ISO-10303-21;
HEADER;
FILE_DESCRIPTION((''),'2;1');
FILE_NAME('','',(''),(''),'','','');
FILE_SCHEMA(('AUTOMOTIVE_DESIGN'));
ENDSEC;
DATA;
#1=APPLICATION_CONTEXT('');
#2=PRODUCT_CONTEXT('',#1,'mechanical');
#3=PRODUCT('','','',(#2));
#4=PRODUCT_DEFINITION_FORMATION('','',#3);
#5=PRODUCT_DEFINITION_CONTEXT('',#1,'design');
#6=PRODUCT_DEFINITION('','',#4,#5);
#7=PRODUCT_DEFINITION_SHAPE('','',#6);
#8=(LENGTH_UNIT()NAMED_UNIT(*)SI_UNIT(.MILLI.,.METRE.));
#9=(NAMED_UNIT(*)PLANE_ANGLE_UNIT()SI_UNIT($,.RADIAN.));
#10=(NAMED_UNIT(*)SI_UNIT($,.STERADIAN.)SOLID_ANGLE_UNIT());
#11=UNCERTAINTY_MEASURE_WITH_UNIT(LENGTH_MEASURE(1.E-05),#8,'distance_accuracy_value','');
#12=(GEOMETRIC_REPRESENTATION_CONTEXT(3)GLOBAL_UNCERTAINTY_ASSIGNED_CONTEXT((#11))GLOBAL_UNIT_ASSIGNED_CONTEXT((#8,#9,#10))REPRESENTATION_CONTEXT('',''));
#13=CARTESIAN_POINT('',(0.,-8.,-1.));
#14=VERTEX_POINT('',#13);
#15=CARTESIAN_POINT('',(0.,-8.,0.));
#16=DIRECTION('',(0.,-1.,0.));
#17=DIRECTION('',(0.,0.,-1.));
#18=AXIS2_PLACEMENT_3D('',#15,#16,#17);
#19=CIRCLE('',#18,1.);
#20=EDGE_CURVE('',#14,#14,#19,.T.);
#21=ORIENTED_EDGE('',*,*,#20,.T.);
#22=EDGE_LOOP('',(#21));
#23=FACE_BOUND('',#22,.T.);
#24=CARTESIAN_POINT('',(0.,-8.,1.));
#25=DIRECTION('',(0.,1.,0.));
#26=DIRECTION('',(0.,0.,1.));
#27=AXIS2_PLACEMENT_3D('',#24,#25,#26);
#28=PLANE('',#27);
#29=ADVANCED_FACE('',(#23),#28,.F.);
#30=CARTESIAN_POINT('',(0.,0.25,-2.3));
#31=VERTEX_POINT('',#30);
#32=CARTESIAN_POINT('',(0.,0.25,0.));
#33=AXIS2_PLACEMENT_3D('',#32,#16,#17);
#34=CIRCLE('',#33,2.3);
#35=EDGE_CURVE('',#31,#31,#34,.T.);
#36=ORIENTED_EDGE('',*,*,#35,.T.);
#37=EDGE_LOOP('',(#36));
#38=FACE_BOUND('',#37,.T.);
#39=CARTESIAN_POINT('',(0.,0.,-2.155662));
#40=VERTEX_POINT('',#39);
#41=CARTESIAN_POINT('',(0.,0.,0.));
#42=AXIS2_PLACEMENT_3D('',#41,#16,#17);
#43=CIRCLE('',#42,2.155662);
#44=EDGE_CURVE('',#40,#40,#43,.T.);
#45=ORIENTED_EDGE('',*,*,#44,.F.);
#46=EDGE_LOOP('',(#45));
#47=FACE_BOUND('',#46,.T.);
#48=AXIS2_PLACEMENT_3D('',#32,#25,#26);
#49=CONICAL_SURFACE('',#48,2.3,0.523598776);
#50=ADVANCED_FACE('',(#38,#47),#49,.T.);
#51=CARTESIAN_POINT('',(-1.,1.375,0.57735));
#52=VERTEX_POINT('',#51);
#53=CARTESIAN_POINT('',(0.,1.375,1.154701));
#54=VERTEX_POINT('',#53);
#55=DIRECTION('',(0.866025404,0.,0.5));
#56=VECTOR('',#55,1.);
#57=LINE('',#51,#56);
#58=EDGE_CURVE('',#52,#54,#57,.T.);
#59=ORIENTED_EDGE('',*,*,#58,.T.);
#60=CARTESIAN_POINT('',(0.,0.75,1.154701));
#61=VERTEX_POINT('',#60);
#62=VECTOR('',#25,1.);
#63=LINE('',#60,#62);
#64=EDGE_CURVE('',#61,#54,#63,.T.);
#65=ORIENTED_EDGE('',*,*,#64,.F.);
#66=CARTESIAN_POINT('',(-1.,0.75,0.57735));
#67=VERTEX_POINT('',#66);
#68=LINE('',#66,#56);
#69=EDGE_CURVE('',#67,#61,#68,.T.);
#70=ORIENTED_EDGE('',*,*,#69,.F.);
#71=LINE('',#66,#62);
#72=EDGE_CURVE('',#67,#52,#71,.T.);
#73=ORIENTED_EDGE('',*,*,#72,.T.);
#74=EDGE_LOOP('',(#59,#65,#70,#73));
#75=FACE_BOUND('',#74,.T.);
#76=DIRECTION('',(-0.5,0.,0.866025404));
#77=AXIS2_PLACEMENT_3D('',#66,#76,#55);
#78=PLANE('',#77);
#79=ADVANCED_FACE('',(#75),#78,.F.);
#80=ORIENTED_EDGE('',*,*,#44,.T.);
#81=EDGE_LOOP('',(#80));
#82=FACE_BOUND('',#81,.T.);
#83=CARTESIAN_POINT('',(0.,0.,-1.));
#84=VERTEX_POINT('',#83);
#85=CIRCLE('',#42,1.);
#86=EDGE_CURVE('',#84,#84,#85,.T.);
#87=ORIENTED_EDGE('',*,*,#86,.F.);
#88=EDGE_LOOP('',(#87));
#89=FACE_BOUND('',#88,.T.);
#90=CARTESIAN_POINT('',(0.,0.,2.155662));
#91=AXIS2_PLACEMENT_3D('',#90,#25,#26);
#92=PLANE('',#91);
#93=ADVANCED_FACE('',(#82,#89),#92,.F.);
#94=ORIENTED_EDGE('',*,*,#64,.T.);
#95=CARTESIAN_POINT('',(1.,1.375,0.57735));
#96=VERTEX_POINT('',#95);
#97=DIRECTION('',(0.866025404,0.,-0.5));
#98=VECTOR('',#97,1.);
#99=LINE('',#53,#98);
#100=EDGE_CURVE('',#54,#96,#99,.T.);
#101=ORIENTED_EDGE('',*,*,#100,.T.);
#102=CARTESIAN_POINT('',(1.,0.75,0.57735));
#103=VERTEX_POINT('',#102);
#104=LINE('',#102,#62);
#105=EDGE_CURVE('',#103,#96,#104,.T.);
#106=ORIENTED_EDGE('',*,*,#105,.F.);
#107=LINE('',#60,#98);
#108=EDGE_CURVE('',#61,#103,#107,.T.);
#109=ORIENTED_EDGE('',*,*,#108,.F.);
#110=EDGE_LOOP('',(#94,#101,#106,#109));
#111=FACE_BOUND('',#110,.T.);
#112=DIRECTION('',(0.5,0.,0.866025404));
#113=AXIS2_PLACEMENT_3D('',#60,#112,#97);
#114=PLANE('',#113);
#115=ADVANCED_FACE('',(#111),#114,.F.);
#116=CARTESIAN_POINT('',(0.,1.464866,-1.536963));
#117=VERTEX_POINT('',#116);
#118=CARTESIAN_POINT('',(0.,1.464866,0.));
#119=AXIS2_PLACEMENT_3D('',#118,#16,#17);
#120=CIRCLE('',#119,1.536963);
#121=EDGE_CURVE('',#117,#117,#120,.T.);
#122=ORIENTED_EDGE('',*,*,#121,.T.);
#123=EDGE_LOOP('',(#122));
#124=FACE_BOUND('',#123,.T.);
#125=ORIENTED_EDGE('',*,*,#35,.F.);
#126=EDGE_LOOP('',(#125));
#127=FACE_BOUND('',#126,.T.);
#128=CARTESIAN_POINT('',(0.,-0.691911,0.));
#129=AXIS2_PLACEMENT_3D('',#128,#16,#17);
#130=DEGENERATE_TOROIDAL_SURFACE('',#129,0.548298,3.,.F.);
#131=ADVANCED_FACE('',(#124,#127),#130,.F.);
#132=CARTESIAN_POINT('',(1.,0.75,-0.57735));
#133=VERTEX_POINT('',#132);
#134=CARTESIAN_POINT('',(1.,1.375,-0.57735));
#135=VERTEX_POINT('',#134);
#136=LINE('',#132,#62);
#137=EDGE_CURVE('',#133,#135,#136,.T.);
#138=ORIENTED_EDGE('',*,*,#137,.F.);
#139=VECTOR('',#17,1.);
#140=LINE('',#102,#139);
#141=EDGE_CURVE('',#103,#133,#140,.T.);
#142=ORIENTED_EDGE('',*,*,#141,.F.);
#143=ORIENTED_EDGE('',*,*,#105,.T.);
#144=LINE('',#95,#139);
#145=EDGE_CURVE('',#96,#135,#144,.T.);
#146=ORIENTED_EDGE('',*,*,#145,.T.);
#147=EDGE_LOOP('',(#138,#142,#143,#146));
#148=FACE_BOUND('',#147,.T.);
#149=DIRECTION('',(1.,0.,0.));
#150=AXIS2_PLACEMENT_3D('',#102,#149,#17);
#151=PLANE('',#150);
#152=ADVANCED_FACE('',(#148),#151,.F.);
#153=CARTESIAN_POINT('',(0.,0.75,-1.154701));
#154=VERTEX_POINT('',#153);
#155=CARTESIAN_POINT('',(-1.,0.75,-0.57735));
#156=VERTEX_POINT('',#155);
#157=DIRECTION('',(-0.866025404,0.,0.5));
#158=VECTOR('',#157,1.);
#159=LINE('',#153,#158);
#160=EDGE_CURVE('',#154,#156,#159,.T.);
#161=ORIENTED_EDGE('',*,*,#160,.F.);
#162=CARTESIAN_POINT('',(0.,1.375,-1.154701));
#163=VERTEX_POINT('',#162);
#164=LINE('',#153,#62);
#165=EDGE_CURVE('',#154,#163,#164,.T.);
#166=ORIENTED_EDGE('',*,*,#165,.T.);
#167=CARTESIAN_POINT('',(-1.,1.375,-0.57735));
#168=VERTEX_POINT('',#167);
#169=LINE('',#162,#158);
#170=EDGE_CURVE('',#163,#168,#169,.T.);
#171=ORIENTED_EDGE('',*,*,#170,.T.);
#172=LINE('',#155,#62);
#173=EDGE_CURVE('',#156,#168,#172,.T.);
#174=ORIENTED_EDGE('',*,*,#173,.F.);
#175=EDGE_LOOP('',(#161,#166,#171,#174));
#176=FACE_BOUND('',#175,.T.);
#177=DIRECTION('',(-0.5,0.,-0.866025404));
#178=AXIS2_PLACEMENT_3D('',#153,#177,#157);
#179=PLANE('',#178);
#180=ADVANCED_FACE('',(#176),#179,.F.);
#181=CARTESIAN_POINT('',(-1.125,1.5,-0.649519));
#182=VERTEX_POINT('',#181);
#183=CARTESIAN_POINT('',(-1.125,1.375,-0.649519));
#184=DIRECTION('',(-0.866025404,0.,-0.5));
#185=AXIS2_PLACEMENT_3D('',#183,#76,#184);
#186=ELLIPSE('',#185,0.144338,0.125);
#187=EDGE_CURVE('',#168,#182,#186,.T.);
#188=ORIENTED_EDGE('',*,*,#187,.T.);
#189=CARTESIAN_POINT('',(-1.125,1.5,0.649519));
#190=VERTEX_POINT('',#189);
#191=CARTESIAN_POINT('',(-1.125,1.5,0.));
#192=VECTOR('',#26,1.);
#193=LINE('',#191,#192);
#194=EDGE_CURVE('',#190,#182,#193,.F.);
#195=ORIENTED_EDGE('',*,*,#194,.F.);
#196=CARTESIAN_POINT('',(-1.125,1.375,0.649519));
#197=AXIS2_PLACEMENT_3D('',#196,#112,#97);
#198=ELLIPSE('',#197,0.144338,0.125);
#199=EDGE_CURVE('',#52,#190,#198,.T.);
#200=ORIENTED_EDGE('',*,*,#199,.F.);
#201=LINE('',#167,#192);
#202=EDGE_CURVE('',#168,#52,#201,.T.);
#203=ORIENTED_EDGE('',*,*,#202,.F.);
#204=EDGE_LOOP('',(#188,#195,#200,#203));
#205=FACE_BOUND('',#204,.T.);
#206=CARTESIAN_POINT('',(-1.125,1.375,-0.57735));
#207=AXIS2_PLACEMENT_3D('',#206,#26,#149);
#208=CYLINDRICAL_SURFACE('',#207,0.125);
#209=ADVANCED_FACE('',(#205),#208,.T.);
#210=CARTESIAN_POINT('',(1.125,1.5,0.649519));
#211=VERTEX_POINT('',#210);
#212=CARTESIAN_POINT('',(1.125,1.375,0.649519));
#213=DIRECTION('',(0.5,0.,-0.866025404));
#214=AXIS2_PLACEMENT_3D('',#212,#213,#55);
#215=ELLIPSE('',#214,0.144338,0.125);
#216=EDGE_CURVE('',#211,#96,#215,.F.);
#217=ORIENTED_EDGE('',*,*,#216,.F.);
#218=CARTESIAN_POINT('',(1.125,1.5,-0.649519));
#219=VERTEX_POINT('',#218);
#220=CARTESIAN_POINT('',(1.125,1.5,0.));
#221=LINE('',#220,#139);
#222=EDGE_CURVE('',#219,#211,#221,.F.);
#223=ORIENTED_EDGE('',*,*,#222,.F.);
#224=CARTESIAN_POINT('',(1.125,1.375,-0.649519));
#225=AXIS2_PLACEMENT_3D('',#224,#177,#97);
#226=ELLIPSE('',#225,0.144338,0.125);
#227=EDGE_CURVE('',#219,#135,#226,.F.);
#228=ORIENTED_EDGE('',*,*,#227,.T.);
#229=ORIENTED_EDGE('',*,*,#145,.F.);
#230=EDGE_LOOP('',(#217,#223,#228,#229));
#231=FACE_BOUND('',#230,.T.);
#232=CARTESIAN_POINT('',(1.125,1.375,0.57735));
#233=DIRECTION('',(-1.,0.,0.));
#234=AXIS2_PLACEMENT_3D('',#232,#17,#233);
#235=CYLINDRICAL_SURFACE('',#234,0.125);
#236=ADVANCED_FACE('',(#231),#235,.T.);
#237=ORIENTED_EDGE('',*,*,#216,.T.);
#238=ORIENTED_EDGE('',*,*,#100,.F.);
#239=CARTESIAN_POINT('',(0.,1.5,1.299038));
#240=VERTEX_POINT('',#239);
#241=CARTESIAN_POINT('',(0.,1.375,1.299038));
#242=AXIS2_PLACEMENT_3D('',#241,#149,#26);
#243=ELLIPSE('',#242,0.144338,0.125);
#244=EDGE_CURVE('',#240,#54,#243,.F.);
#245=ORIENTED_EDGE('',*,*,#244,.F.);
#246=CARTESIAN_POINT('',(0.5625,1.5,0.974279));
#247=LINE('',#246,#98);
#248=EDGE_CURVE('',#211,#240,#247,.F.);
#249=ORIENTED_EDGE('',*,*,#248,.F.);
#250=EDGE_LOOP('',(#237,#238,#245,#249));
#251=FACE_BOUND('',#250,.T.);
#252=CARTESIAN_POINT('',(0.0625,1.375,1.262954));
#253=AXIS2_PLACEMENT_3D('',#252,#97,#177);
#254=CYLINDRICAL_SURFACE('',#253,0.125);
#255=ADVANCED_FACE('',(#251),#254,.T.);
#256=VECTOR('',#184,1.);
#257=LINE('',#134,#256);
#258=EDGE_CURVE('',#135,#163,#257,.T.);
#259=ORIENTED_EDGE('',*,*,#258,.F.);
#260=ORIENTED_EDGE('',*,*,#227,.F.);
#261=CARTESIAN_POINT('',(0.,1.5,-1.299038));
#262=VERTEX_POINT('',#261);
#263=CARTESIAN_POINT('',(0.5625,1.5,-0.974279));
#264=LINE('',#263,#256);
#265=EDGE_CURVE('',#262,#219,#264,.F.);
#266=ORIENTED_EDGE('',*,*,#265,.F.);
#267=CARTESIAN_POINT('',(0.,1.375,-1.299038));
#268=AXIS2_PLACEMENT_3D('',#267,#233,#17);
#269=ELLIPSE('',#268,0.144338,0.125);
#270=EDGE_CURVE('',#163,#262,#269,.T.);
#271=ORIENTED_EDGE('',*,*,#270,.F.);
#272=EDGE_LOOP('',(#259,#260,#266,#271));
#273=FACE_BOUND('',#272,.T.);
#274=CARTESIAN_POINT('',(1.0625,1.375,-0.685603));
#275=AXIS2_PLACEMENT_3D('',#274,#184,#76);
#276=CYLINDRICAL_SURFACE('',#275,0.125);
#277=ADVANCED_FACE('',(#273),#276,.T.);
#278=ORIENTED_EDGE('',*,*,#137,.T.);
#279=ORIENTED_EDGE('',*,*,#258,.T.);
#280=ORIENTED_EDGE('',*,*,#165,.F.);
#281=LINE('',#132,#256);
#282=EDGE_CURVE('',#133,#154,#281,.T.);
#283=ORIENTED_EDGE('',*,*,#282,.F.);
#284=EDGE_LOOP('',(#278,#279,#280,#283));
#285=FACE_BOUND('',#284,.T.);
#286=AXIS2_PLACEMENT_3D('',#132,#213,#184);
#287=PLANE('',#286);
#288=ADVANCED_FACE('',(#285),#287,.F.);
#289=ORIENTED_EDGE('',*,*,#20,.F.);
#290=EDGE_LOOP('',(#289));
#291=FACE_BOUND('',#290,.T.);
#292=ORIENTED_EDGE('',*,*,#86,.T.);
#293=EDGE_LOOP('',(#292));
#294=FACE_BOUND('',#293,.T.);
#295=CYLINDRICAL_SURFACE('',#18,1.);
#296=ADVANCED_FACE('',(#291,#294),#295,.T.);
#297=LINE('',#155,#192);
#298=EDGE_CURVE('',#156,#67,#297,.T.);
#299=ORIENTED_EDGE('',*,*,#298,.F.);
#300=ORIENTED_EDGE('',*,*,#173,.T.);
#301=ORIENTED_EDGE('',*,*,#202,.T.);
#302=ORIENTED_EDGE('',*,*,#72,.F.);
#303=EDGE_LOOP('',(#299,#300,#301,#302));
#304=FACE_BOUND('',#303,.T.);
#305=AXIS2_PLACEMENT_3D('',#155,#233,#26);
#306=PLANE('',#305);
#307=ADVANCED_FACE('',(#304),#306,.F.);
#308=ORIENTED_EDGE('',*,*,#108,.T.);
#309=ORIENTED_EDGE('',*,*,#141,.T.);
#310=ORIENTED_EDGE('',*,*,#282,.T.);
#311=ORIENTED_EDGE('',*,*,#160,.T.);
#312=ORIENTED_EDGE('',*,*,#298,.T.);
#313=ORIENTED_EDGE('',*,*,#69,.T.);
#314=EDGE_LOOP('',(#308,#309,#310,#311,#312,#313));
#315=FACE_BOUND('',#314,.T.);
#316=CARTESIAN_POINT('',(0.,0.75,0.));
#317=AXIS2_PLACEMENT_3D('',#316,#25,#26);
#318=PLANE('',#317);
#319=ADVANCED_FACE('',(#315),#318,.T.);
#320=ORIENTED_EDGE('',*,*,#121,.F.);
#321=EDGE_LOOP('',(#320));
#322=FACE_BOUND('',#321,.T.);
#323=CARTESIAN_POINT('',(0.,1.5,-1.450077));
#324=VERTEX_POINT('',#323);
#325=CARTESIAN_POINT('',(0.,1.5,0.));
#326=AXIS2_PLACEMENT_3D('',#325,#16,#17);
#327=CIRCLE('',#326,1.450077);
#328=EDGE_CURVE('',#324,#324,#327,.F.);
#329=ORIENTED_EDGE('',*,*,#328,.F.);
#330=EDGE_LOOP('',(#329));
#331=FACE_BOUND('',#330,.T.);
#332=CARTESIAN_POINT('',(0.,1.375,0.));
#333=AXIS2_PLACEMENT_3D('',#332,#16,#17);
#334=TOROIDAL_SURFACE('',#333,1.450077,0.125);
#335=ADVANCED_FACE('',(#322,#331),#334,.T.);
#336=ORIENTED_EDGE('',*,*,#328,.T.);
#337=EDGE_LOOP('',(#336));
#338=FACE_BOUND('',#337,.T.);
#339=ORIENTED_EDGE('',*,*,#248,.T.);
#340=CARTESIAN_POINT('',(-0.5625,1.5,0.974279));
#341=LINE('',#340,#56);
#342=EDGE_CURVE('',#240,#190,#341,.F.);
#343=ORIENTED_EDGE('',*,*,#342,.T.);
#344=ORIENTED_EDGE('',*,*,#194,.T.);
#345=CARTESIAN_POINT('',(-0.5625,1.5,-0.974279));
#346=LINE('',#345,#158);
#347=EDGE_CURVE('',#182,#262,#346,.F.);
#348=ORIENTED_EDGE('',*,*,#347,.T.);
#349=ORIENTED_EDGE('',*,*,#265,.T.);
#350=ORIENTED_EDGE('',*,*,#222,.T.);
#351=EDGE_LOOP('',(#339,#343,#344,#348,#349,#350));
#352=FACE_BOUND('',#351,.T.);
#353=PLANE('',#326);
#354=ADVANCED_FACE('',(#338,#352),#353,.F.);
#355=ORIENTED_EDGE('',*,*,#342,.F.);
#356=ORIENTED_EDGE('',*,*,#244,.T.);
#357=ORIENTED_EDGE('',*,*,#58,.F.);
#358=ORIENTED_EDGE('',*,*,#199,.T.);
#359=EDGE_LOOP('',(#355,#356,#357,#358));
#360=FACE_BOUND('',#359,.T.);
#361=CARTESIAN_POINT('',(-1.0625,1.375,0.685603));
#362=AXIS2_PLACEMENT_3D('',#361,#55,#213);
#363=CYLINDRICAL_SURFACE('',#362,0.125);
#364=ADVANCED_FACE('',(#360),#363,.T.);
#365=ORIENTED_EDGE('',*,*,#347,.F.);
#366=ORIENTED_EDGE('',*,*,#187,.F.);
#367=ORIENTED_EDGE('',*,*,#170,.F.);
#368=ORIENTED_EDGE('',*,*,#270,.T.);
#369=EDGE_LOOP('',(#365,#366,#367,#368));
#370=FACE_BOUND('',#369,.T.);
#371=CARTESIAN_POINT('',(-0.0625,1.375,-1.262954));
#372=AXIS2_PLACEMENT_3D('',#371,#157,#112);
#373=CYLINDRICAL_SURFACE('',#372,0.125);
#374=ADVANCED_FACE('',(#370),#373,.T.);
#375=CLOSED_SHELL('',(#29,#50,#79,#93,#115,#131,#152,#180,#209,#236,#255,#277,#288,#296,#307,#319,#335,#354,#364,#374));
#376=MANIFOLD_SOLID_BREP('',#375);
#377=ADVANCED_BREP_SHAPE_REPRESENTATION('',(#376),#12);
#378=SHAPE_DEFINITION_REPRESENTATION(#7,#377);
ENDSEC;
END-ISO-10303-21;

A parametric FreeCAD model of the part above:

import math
import FreeCAD as App
import Part
import Sketcher
Q = App.Units.Quantity


def edges_at(feature, points):
    """Names of the edges that pass closest to the given points."""
    edges = feature.Shape.Edges
    near = lambda p: min(range(len(edges)), key=lambda i: edges[i].distToShape(Part.Vertex(*p))[0])
    return sorted({f"Edge{near(p) + 1}" for p in points})

doc = App.newDocument("Part")
body = doc.addObject("PartDesign::Body", "Body")

# Sketch on YZ plane
sketch1 = body.newObject("Sketcher::SketchObject", "Sketch")
sketch1.AttachmentSupport = (doc.getObject("YZ_Plane"), [""])
sketch1.MapMode = "FlatFace"
sketch1.addGeometry(Part.LineSegment(App.Vector(1.5, 0, 0), App.Vector(1.5, 1.5, 0)), False)
sketch1.addGeometry(Part.ArcOfCircle(Part.Circle(App.Vector(-0.69, -0.55, 0), App.Vector(0, 0, 1), 3), math.radians(43), math.radians(72)), False)
sketch1.addGeometry(Part.LineSegment(App.Vector(0.25, 2.3, 0), App.Vector(0, 2.16, 0)), False)
sketch1.addGeometry(Part.LineSegment(App.Vector(0, 2.16, 0), App.Vector(0, 1, 0)), False)
sketch1.addGeometry(Part.LineSegment(App.Vector(0, 1, 0), App.Vector(-8, 1, 0)), False)
sketch1.addGeometry(Part.LineSegment(App.Vector(-8, 1, 0), App.Vector(-8, 0, 0)), False)
sketch1.addGeometry(Part.LineSegment(App.Vector(-8, 0, 0), App.Vector(1.5, 0, 0)), False)
sketch1.addConstraint(Sketcher.Constraint("Coincident", 0, 2, 1, 1))
sketch1.addConstraint(Sketcher.Constraint("Coincident", 1, 2, 2, 1))
sketch1.addConstraint(Sketcher.Constraint("Coincident", 2, 2, 3, 1))
sketch1.addConstraint(Sketcher.Constraint("Coincident", 3, 2, 4, 1))
sketch1.addConstraint(Sketcher.Constraint("Coincident", 4, 2, 5, 1))
sketch1.addConstraint(Sketcher.Constraint("Coincident", 5, 2, 6, 1))
sketch1.addConstraint(Sketcher.Constraint("Coincident", 6, 2, 0, 1))
sketch1.addConstraint(Sketcher.Constraint("Vertical", 0))
sketch1.addConstraint(Sketcher.Constraint("Vertical", 3))
sketch1.addConstraint(Sketcher.Constraint("Horizontal", 4))
sketch1.addConstraint(Sketcher.Constraint("Vertical", 5))
sketch1.addConstraint(Sketcher.Constraint("Horizontal", 6))
sketch1.addConstraint(Sketcher.Constraint("PointOnObject", 2, 2, -2))
sketch1.addConstraint(Sketcher.Constraint("PointOnObject", 5, 2, -1))
sketch1.addConstraint(Sketcher.Constraint("Radius", 1, 3.0))
sketch1.addConstraint(Sketcher.Constraint("DistanceX", 4, 2, 4, 1, 8.0))
sketch1.addConstraint(Sketcher.Constraint("DistanceY", 5, 2, 5, 1, 1.0))
sketch1.addConstraint(Sketcher.Constraint("Angle", 2, Q("-150 deg")))
sketch1.addConstraint(Sketcher.Constraint("DistanceX", 6, 1, 6, 2, 9.5))
sketch1.addConstraint(Sketcher.Constraint("DistanceY", 0, 1, 0, 2, 1.5))
sketch1.addConstraint(Sketcher.Constraint("DistanceY", -1, 1, 1, 2, 2.3))
sketch1.addConstraint(Sketcher.Constraint("DistanceX", -1, 1, 1, 2, 0.25))
revolution = body.newObject("PartDesign::Revolution", "Revolution")
revolution.Profile = sketch1
revolution.ReferenceAxis = (sketch1, ["H_Axis"])
revolution.Angle = 360

# Sketch on XZ plane
sketch2 = body.newObject("Sketcher::SketchObject", "Sketch001")
sketch2.AttachmentSupport = (doc.getObject("XZ_Plane"), [""])
sketch2.MapMode = "FlatFace"
sketch2.AttachmentOffset = App.Placement(App.Vector(0, 0, -1.5), App.Rotation())
sketch2.addGeometry(Part.LineSegment(App.Vector(0, -1.2, 0), App.Vector(-1, -0.6, 0)), False)
sketch2.addGeometry(Part.LineSegment(App.Vector(-1, -0.6, 0), App.Vector(-1, 0.6, 0)), False)
sketch2.addGeometry(Part.LineSegment(App.Vector(-1, 0.6, 0), App.Vector(0, 1.2, 0)), False)
sketch2.addGeometry(Part.LineSegment(App.Vector(0, 1.2, 0), App.Vector(1, 0.6, 0)), False)
sketch2.addGeometry(Part.LineSegment(App.Vector(1, 0.6, 0), App.Vector(1, -0.6, 0)), False)
sketch2.addGeometry(Part.LineSegment(App.Vector(1, -0.6, 0), App.Vector(0, -1.2, 0)), False)
sketch2.addConstraint(Sketcher.Constraint("Coincident", 0, 2, 1, 1))
sketch2.addConstraint(Sketcher.Constraint("Coincident", 1, 2, 2, 1))
sketch2.addConstraint(Sketcher.Constraint("Coincident", 2, 2, 3, 1))
sketch2.addConstraint(Sketcher.Constraint("Coincident", 3, 2, 4, 1))
sketch2.addConstraint(Sketcher.Constraint("Coincident", 4, 2, 5, 1))
sketch2.addConstraint(Sketcher.Constraint("Coincident", 5, 2, 0, 1))
sketch2.addConstraint(Sketcher.Constraint("Vertical", 1))
sketch2.addConstraint(Sketcher.Constraint("Vertical", 4))
sketch2.addConstraint(Sketcher.Constraint("Symmetric", 0, 2, 3, 2, -1, 1))
sketch2.addConstraint(Sketcher.Constraint("Symmetric", 2, 2, 5, 2, -1, 1))
sketch2.addConstraint(Sketcher.Constraint("PointOnObject", 2, 2, -2))
sketch2.addConstraint(Sketcher.Constraint("Parallel", 2, 5))
sketch2.addConstraint(Sketcher.Constraint("Horizontal", 1, 2, 3, 2))
sketch2.addConstraint(Sketcher.Constraint("Angle", 0, Q("150 deg")))
sketch2.addConstraint(Sketcher.Constraint("DistanceX", 0, 2, -1, 1, 1.0))
sketch2.addConstraint(Sketcher.Constraint("DistanceY", 1, 1, 1, 2, 1.154701))
pocket1 = body.newObject("PartDesign::Pocket", "Pocket")
pocket1.Profile = sketch2
pocket1.Length = 0.75
pocket1.Reversed = True
doc.recompute()

fillet = body.newObject("PartDesign::Fillet", "Fillet")
fillet.Base = (pocket1, edges_at(pocket1, [
    (0.5, 1.5, -0.866),
    (-0.5, 1.5, -0.866),
    (-1, 1.5, 0),
    (-0.5, 1.5, 0.866),
    (0.5, 1.5, 0.866),
    (1, 1.5, 0),
    (0, 1.5, -1.5),
]))
fillet.Radius = 0.125

doc.recompute()
